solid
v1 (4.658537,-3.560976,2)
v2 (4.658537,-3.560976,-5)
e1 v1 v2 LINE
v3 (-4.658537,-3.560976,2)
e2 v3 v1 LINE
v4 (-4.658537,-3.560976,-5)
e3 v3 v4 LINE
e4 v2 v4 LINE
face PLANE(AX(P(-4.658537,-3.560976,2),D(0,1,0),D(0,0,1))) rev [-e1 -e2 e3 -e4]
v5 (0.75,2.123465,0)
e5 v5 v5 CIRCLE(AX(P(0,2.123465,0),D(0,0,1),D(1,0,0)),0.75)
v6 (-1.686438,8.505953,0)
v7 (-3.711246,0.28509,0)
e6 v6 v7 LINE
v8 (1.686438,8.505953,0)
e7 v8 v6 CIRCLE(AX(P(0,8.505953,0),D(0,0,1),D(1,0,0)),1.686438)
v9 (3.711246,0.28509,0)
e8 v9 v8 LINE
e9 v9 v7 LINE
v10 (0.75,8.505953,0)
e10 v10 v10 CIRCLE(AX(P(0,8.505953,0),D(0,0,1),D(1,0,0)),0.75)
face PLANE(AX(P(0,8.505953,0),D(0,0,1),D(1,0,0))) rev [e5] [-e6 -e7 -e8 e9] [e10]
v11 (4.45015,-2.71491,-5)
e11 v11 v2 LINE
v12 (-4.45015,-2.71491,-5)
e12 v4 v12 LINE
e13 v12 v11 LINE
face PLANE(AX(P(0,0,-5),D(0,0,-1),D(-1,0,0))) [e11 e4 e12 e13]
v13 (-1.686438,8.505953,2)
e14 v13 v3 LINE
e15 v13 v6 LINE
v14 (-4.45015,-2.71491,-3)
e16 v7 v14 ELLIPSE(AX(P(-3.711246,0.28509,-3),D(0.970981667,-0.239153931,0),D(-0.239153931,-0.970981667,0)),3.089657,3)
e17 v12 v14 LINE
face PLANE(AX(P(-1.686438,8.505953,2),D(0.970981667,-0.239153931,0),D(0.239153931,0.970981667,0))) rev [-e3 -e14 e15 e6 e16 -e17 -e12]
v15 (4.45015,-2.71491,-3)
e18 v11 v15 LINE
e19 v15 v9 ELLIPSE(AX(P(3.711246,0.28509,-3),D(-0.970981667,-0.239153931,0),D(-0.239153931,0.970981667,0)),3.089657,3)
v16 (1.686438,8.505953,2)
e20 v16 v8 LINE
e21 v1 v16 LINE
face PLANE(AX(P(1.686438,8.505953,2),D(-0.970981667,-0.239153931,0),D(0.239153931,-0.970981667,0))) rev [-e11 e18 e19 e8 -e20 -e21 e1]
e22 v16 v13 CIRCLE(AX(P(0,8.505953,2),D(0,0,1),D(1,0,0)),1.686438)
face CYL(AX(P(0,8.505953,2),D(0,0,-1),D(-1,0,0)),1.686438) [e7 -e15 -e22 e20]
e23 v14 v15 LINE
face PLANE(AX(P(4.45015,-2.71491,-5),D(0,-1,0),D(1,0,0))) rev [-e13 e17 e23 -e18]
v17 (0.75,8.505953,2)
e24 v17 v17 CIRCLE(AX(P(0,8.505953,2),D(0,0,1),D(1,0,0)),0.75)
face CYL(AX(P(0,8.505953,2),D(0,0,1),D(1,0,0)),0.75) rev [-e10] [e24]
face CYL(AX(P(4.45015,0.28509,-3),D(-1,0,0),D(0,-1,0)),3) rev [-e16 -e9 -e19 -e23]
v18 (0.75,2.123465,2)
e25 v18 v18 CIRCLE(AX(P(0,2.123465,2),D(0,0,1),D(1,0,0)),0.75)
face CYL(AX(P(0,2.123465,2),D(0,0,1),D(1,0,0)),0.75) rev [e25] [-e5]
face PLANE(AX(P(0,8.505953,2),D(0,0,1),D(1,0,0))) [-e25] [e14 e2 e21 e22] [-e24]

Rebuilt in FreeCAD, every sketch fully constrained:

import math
import FreeCAD as App
import Part
import Sketcher
from FreeCAD import Vector
Q = App.Units.Quantity


def edges_at(feature, points):
    """Names of the edges that pass closest to the given points."""
    edges = feature.Shape.Edges
    near = lambda p: min(range(len(edges)), key=lambda i: edges[i].distToShape(Part.Vertex(*p))[0])
    return sorted({f"Edge{near(p) + 1}" for p in points})


def add_polygon(sketch, points):
    """Adds a closed chain of lines whose ends are joined by coincident constraints."""
    first, n = sketch.GeometryCount, len(points)
    for a, b in zip(points, points[1:] + points[:1]):
        sketch.addGeometry(Part.LineSegment(App.Vector(*a, 0), App.Vector(*b, 0)), False)
    for i in range(n):
        sketch.addConstraint(Sketcher.Constraint("Coincident", first + i, 2, first + (i + 1) % n, 1))

doc = App.newDocument("Part")
body = doc.addObject("PartDesign::Body", "Body")

# Sketch on XY plane
sketch1 = doc.addObject("Sketcher::SketchObject", "Sketch")
body.addObject(sketch1)
sketch1.AttachmentSupport = (doc.XY_Plane, [""])
sketch1.MapMode = "FlatFace"
sketch1.addGeometry(Part.LineSegment(Vector(-1.7, 8.5, 0), Vector(-4.7, -3.6, 0)), False)
sketch1.addGeometry(Part.LineSegment(Vector(-4.7, -3.6, 0), Vector(4.7, -3.6, 0)), False)
sketch1.addGeometry(Part.LineSegment(Vector(4.7, -3.6, 0), Vector(1.7, 8.5, 0)), False)
sketch1.addGeometry(Part.ArcOfCircle(Part.Circle(Vector(0, 8.5, 0), Vector(0, 0, 1), 1.7), math.radians(0), math.radians(180)), False)
sketch1.addConstraint(Sketcher.Constraint("Coincident", 0, 2, 1, 1))
sketch1.addConstraint(Sketcher.Constraint("Coincident", 1, 2, 2, 1))
sketch1.addConstraint(Sketcher.Constraint("Coincident", 2, 2, 3, 1))
sketch1.addConstraint(Sketcher.Constraint("Coincident", 3, 2, 0, 1))
sketch1.addConstraint(Sketcher.Constraint("Horizontal", 1))
sketch1.addConstraint(Sketcher.Constraint("Symmetric", 2, 2, 3, 2, -2))
sketch1.addConstraint(Sketcher.Constraint("Horizontal", 3, 3, 2, 2))
sketch1.addConstraint(Sketcher.Constraint("Equal", 0, 2))
sketch1.addConstraint(Sketcher.Constraint("Radius", 3, Q("1.686438 mm")))
sketch1.addConstraint(Sketcher.Constraint("DistanceX", 2, 2, 1, 2, Q("2.972099 mm")))
sketch1.addConstraint(Sketcher.Constraint("DistanceY", 0, 2, 3, 3, Q("12.066929 mm")))
sketch1.addConstraint(Sketcher.Constraint("DistanceY", -1, 1, 3, 3, Q("8.505953 mm")))
pad1 = doc.addObject("PartDesign::Pad", "Pad")
body.addObject(pad1)
pad1.Profile = sketch1
pad1.Length = 2

# Sketch on XY plane
sketch2 = doc.addObject("Sketcher::SketchObject", "Sketch001")
body.addObject(sketch2)
sketch2.AttachmentSupport = (doc.XY_Plane, [""])
sketch2.MapMode = "FlatFace"
add_polygon(sketch2, [(-4.5, -2.7), (4.5, -2.7), (4.7, -3.6), (-4.7, -3.6)])  # lines 0-3
sketch2.addConstraint(Sketcher.Constraint("Horizontal", 0))
sketch2.addConstraint(Sketcher.Constraint("Horizontal", 2))
sketch2.addConstraint(Sketcher.Constraint("Equal", 1, 3))
sketch2.addConstraint(Sketcher.Constraint("DistanceX", 0, 1, 0, 2, Q("8.900299 mm")))
sketch2.addConstraint(Sketcher.Constraint("Distance", 1, Q("0.871351 mm")))
sketch2.addConstraint(Sketcher.Constraint("DistanceX", 2, 2, 2, 1, Q("9.317073 mm")))
sketch2.addConstraint(Sketcher.Constraint("DistanceX", -1, 1, 0, 2, Q("4.45015 mm")))
sketch2.addConstraint(Sketcher.Constraint("DistanceY", 0, 2, -1, 1, Q("2.71491 mm")))
pad2 = doc.addObject("PartDesign::Pad", "Pad001")
body.addObject(pad2)
pad2.Profile = sketch2
pad2.Length = 5
pad2.Reversed = True
doc.recompute()

fillet = doc.addObject("PartDesign::Fillet", "Fillet")
body.addObject(fillet)
fillet.Base = (pad2, edges_at(pad2, [(0, -2.715, 0)]))
fillet.Radius = 3

# Sketch on XY plane
sketch3 = doc.addObject("Sketcher::SketchObject", "Sketch002")
body.addObject(sketch3)
sketch3.AttachmentSupport = (doc.XY_Plane, [""])
sketch3.MapMode = "FlatFace"
sketch3.AttachmentOffset = App.Placement(Vector(0, 0, 2), App.Rotation())
sketch3.addGeometry(Part.Circle(Vector(0, 8.5, 0), Vector(0, 0, 1), 0.8), False)
sketch3.addGeometry(Part.Circle(Vector(0, 2.1, 0), Vector(0, 0, 1), 0.8), False)
sketch3.addConstraint(Sketcher.Constraint("Equal", 0, 1))
sketch3.addConstraint(Sketcher.Constraint("PointOnObject", 0, 3, -2))
sketch3.addConstraint(Sketcher.Constraint("PointOnObject", 1, 3, -2))
sketch3.addConstraint(Sketcher.Constraint("Diameter", 0, Q("1.5 mm")))
sketch3.addConstraint(Sketcher.Constraint("DistanceY", 1, 3, 0, 3, Q("6.382488 mm")))
sketch3.addConstraint(Sketcher.Constraint("DistanceY", -1, 1, 0, 3, Q("8.505953 mm")))
doc.recompute()
hole = doc.addObject("PartDesign::Hole", "Hole")
body.addObject(hole)
hole.Profile = sketch3
hole.ThreadType = "None"
hole.Diameter = 1.5
hole.DepthType = "ThroughAll"

doc.recompute()
